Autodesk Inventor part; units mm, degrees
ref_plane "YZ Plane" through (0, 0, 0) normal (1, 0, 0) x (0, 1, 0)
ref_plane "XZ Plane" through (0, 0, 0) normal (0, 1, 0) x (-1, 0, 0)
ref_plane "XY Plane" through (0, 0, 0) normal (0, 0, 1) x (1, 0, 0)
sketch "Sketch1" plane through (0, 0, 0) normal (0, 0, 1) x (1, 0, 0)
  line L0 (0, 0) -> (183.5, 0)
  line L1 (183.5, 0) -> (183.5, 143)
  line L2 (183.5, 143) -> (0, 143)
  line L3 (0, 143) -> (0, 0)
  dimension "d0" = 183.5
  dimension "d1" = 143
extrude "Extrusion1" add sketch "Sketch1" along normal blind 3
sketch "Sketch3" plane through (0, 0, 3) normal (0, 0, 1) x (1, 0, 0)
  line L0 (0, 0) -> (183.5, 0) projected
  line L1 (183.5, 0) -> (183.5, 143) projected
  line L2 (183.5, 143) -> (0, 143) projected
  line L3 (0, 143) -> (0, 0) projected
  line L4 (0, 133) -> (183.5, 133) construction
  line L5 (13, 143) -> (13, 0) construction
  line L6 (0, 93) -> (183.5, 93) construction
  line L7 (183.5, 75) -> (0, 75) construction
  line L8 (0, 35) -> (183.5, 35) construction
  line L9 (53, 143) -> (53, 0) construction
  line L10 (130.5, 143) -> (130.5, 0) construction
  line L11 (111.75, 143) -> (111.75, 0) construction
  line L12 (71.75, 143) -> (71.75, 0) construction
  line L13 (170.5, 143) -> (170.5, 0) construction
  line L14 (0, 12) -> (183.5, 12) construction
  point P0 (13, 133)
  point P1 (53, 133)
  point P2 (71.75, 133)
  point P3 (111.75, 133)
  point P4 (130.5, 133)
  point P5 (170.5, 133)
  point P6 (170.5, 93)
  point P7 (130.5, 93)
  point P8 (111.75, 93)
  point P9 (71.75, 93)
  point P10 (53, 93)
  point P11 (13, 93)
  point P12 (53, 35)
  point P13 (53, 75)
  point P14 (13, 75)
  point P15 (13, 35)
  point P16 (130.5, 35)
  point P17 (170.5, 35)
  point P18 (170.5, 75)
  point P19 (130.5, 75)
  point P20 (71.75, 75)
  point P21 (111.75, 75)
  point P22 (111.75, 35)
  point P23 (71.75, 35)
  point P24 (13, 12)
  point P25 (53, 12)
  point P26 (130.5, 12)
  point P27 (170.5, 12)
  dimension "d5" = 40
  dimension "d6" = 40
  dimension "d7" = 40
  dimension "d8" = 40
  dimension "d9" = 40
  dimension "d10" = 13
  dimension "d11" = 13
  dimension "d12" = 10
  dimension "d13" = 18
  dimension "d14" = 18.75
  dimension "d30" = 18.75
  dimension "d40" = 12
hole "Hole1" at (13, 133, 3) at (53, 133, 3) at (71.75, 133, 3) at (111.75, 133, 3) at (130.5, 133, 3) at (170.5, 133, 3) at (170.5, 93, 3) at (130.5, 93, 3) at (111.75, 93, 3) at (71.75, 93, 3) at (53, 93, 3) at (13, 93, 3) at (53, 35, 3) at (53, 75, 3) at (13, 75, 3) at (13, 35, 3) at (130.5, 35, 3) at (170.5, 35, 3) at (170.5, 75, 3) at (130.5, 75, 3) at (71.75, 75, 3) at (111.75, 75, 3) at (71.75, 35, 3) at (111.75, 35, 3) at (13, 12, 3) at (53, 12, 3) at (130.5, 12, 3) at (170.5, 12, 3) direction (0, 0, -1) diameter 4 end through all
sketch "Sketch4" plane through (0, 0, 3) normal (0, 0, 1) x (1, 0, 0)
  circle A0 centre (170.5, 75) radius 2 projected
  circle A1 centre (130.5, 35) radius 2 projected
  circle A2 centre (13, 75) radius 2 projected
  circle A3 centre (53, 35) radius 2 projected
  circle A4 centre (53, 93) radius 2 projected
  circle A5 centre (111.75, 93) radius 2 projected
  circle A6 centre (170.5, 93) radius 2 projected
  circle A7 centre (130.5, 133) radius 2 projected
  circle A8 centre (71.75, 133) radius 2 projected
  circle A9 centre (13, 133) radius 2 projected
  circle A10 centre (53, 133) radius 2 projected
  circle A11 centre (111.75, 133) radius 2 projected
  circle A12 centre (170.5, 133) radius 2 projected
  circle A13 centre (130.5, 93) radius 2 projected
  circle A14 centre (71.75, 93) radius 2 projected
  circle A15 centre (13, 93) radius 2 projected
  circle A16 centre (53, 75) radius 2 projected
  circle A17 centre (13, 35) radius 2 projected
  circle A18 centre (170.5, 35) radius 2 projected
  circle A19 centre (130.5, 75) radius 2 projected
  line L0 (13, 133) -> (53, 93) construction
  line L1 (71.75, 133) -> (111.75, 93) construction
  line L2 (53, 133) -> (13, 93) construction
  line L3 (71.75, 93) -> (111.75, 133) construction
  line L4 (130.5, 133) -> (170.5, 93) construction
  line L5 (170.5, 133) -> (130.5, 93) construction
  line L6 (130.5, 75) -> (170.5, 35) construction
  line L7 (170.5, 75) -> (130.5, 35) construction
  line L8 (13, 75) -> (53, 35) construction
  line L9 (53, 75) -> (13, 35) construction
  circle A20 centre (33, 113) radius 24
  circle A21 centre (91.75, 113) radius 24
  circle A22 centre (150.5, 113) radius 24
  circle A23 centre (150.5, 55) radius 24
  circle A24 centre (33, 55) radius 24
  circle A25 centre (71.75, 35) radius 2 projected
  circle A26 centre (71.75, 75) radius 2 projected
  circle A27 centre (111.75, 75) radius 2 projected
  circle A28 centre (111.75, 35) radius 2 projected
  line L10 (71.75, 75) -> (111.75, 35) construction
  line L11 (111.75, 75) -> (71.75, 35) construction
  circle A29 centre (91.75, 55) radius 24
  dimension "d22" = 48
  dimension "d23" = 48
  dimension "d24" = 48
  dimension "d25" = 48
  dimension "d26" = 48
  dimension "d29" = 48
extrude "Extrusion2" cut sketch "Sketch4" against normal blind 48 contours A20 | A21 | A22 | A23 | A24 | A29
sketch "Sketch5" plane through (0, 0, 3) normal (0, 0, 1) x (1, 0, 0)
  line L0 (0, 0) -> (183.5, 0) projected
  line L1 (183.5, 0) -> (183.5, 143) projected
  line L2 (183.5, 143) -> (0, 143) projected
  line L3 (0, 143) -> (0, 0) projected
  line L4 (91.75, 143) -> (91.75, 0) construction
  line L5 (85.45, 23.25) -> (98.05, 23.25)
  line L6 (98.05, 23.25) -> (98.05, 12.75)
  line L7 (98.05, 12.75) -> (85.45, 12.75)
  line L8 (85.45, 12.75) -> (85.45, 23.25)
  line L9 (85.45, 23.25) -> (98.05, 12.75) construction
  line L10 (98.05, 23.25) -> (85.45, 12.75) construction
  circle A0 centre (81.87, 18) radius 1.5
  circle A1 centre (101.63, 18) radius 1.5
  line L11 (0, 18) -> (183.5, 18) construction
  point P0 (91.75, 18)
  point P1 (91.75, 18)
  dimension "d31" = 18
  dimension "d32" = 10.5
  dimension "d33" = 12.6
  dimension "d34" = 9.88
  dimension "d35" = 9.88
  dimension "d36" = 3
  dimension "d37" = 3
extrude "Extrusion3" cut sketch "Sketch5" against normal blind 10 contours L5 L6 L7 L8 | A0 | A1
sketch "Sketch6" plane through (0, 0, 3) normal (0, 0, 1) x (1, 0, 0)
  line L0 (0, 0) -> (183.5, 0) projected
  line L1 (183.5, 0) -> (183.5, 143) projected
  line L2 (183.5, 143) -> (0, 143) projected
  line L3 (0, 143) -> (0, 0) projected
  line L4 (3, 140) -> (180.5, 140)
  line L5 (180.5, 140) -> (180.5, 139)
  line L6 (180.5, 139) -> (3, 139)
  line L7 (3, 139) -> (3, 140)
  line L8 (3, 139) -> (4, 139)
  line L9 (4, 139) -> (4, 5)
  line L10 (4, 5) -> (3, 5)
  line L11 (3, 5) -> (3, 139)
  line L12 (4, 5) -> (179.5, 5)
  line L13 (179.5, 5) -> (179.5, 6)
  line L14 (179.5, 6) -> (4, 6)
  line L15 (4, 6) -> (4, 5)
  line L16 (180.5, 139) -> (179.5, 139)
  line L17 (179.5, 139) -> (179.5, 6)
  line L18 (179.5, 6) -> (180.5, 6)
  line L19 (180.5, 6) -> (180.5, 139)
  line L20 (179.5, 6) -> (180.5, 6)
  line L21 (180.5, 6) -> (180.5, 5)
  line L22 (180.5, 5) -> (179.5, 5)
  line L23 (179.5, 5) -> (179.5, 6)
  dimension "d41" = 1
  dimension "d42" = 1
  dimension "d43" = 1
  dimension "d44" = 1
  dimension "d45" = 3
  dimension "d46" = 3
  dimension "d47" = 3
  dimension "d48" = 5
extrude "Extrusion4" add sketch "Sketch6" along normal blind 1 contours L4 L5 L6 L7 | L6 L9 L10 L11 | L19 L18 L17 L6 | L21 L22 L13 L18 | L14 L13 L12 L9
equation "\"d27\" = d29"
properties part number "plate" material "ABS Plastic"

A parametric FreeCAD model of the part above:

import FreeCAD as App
import Part
import Sketcher

doc = App.newDocument("Part")
body = doc.addObject("PartDesign::Body", "Body")

# Sketch on XY plane
sketch1 = doc.addObject("Sketcher::SketchObject", "Sketch")
body.addObject(sketch1)
sketch1.AttachmentSupport = (doc.XY_Plane, [""])
sketch1.MapMode = "FlatFace"
sketch1.addGeometry([
    Part.LineSegment(App.Vector(0, 143, 0), App.Vector(0, 0, 0)),
    Part.LineSegment(App.Vector(0, 0, 0), App.Vector(184, 0, 0)),
    Part.LineSegment(App.Vector(184, 0, 0), App.Vector(184, 143, 0)),
    Part.LineSegment(App.Vector(184, 143, 0), App.Vector(0, 143, 0)),
], False)
sketch1.addConstraint([
    Sketcher.Constraint("Coincident", 0, 2, 1, 1),
    Sketcher.Constraint("Coincident", 1, 2, 2, 1),
    Sketcher.Constraint("Coincident", 2, 2, 3, 1),
    Sketcher.Constraint("Coincident", 3, 2, 0, 1),
    Sketcher.Constraint("Vertical", 0),
    Sketcher.Constraint("Horizontal", 1),
    Sketcher.Constraint("Vertical", 2),
    Sketcher.Constraint("Horizontal", 3),
    Sketcher.Constraint("Coincident", 0, 2, -1, 1),
    Sketcher.Constraint("DistanceY", 0, 2, 0, 1, 143.0),
    Sketcher.Constraint("DistanceX", 1, 1, 1, 2, 183.5),
])
pad1 = doc.addObject("PartDesign::Pad", "Pad")
body.addObject(pad1)
pad1.Profile = sketch1
pad1.Length = 3

# Sketch on XY plane
sketch2 = doc.addObject("Sketcher::SketchObject", "Sketch001")
body.addObject(sketch2)
sketch2.AttachmentSupport = (doc.XY_Plane, [""])
sketch2.MapMode = "FlatFace"
sketch2.AttachmentOffset = App.Placement(App.Vector(0, 0, 3), App.Rotation())
sketch2.addGeometry([
    Part.Circle(App.Vector(13, 133, 0), App.Vector(0, 0, 1), 2),  # 0
    Part.Circle(App.Vector(53, 133, 0), App.Vector(0, 0, 1), 2),  # 1
    Part.Circle(App.Vector(71.8, 133, 0), App.Vector(0, 0, 1), 2),  # 2
    Part.Circle(App.Vector(111.8, 133, 0), App.Vector(0, 0, 1), 2),  # 3
    Part.Circle(App.Vector(130.5, 133, 0), App.Vector(0, 0, 1), 2),  # 4
    Part.Circle(App.Vector(170.5, 133, 0), App.Vector(0, 0, 1), 2),  # 5
    Part.Circle(App.Vector(170.5, 93, 0), App.Vector(0, 0, 1), 2),  # 6
    Part.Circle(App.Vector(130.5, 93, 0), App.Vector(0, 0, 1), 2),  # 7
    Part.Circle(App.Vector(111.8, 93, 0), App.Vector(0, 0, 1), 2),  # 8
    Part.Circle(App.Vector(71.8, 93, 0), App.Vector(0, 0, 1), 2),  # 9
    Part.Circle(App.Vector(53, 93, 0), App.Vector(0, 0, 1), 2),  # 10
    Part.Circle(App.Vector(13, 93, 0), App.Vector(0, 0, 1), 2),  # 11
    Part.Circle(App.Vector(53, 35, 0), App.Vector(0, 0, 1), 2),  # 12
    Part.Circle(App.Vector(53, 75, 0), App.Vector(0, 0, 1), 2),  # 13
    Part.Circle(App.Vector(13, 75, 0), App.Vector(0, 0, 1), 2),  # 14
    Part.Circle(App.Vector(13, 35, 0), App.Vector(0, 0, 1), 2),  # 15
    Part.Circle(App.Vector(130.5, 35, 0), App.Vector(0, 0, 1), 2),  # 16
    Part.Circle(App.Vector(170.5, 35, 0), App.Vector(0, 0, 1), 2),  # 17
    Part.Circle(App.Vector(170.5, 75, 0), App.Vector(0, 0, 1), 2),  # 18
    Part.Circle(App.Vector(130.5, 75, 0), App.Vector(0, 0, 1), 2),  # 19
    Part.Circle(App.Vector(71.8, 75, 0), App.Vector(0, 0, 1), 2),  # 20
    Part.Circle(App.Vector(111.8, 75, 0), App.Vector(0, 0, 1), 2),  # 21
    Part.Circle(App.Vector(71.8, 35, 0), App.Vector(0, 0, 1), 2),  # 22
    Part.Circle(App.Vector(111.8, 35, 0), App.Vector(0, 0, 1), 2),  # 23
    Part.Circle(App.Vector(13, 12, 0), App.Vector(0, 0, 1), 2),  # 24
    Part.Circle(App.Vector(53, 12, 0), App.Vector(0, 0, 1), 2),  # 25
    Part.Circle(App.Vector(130.5, 12, 0), App.Vector(0, 0, 1), 2),  # 26
    Part.Circle(App.Vector(170.5, 12, 0), App.Vector(0, 0, 1), 2),  # 27
], False)
sketch2.addConstraint([
    Sketcher.Constraint("Equal", 0, 1),
    Sketcher.Constraint("Equal", 1, 2),
    Sketcher.Constraint("Equal", 2, 3),
    Sketcher.Constraint("Equal", 3, 4),
    Sketcher.Constraint("Equal", 4, 5),
    Sketcher.Constraint("Equal", 5, 6),
    Sketcher.Constraint("Equal", 6, 7),
    Sketcher.Constraint("Equal", 7, 8),
    Sketcher.Constraint("Equal", 8, 9),
    Sketcher.Constraint("Equal", 9, 10),
    Sketcher.Constraint("Equal", 10, 11),
    Sketcher.Constraint("Equal", 11, 12),
    Sketcher.Constraint("Equal", 12, 13),
    Sketcher.Constraint("Equal", 13, 14),
    Sketcher.Constraint("Equal", 14, 15),
    Sketcher.Constraint("Equal", 15, 16),
    Sketcher.Constraint("Equal", 16, 17),
    Sketcher.Constraint("Equal", 17, 18),
    Sketcher.Constraint("Equal", 18, 19),
    Sketcher.Constraint("Equal", 19, 20),
    Sketcher.Constraint("Equal", 20, 21),
    Sketcher.Constraint("Equal", 21, 22),
    Sketcher.Constraint("Equal", 22, 23),
    Sketcher.Constraint("Equal", 23, 24),
    Sketcher.Constraint("Equal", 24, 25),
    Sketcher.Constraint("Equal", 25, 26),
    Sketcher.Constraint("Equal", 26, 27),
    Sketcher.Constraint("Horizontal", 0, 3, 1, 3),
    Sketcher.Constraint("Horizontal", 1, 3, 2, 3),
    Sketcher.Constraint("Horizontal", 2, 3, 3, 3),
    Sketcher.Constraint("Horizontal", 3, 3, 4, 3),
    Sketcher.Constraint("Horizontal", 4, 3, 5, 3),
    Sketcher.Constraint("Horizontal", 6, 3, 7, 3),
    Sketcher.Constraint("Horizontal", 7, 3, 8, 3),
    Sketcher.Constraint("Horizontal", 8, 3, 9, 3),
    Sketcher.Constraint("Horizontal", 9, 3, 10, 3),
    Sketcher.Constraint("Horizontal", 10, 3, 11, 3),
    Sketcher.Constraint("Horizontal", 13, 3, 14, 3),
    Sketcher.Constraint("Horizontal", 12, 3, 15, 3),
    Sketcher.Constraint("Horizontal", 15, 3, 16, 3),
    Sketcher.Constraint("Horizontal", 16, 3, 17, 3),
    Sketcher.Constraint("Horizontal", 14, 3, 18, 3),
    Sketcher.Constraint("Horizontal", 18, 3, 19, 3),
    Sketcher.Constraint("Horizontal", 19, 3, 20, 3),
    Sketcher.Constraint("Horizontal", 20, 3, 21, 3),
    Sketcher.Constraint("Horizontal", 17, 3, 22, 3),
    Sketcher.Constraint("Horizontal", 22, 3, 23, 3),
    Sketcher.Constraint("Horizontal", 24, 3, 25, 3),
    Sketcher.Constraint("Horizontal", 25, 3, 26, 3),
    Sketcher.Constraint("Horizontal", 26, 3, 27, 3),
    Sketcher.Constraint("Vertical", 5, 3, 6, 3),
    Sketcher.Constraint("Vertical", 4, 3, 7, 3),
    Sketcher.Constraint("Vertical", 3, 3, 8, 3),
    Sketcher.Constraint("Vertical", 2, 3, 9, 3),
    Sketcher.Constraint("Vertical", 1, 3, 10, 3),
    Sketcher.Constraint("Vertical", 0, 3, 11, 3),
    Sketcher.Constraint("Vertical", 10, 3, 12, 3),
    Sketcher.Constraint("Vertical", 12, 3, 13, 3),
    Sketcher.Constraint("Vertical", 11, 3, 14, 3),
    Sketcher.Constraint("Vertical", 14, 3, 15, 3),
    Sketcher.Constraint("Vertical", 7, 3, 16, 3),
    Sketcher.Constraint("Vertical", 6, 3, 17, 3),
    Sketcher.Constraint("Vertical", 17, 3, 18, 3),
    Sketcher.Constraint("Vertical", 16, 3, 19, 3),
    Sketcher.Constraint("Vertical", 9, 3, 20, 3),
    Sketcher.Constraint("Vertical", 8, 3, 21, 3),
    Sketcher.Constraint("Vertical", 20, 3, 22, 3),
    Sketcher.Constraint("Vertical", 21, 3, 23, 3),
    Sketcher.Constraint("Vertical", 15, 3, 24, 3),
    Sketcher.Constraint("Vertical", 13, 3, 25, 3),
    Sketcher.Constraint("Vertical", 19, 3, 26, 3),
    Sketcher.Constraint("Vertical", 18, 3, 27, 3),
    Sketcher.Constraint("Diameter", 0, 4.0),
    Sketcher.Constraint("DistanceX", -1, 1, 0, 3, 13.0),
    Sketcher.Constraint("DistanceY", -1, 1, 0, 3, 133.0),
    Sketcher.Constraint("DistanceX", -1, 1, 1, 3, 53.0),
    Sketcher.Constraint("DistanceY", -1, 1, 6, 3, 93.0),
    Sketcher.Constraint("DistanceY", -1, 1, 12, 3, 35.0),
    Sketcher.Constraint("DistanceY", -1, 1, 13, 3, 75.0),
    Sketcher.Constraint("DistanceY", -1, 1, 24, 3, 12.0),
    Sketcher.Constraint("DistanceX", 2, 3, 3, 3, 40.0),
    Sketcher.Constraint("DistanceX", 4, 3, 5, 3, 40.0),
    Sketcher.Constraint("DistanceX", -1, 1, 4, 3, 130.5),
    Sketcher.Constraint("DistanceX", -1, 1, 2, 3, 71.75),
])
doc.recompute()
hole = doc.addObject("PartDesign::Hole", "Hole")
body.addObject(hole)
hole.Profile = sketch2
hole.ThreadType = "None"
hole.Diameter = 4
hole.DepthType = "ThroughAll"

# Sketch on XY plane
sketch3 = doc.addObject("Sketcher::SketchObject", "Sketch002")
body.addObject(sketch3)
sketch3.AttachmentSupport = (doc.XY_Plane, [""])
sketch3.MapMode = "FlatFace"
sketch3.AttachmentOffset = App.Placement(App.Vector(0, 0, 3), App.Rotation())
sketch3.addGeometry([
    Part.Circle(App.Vector(33, 113, 0), App.Vector(0, 0, 1), 24),  # 0
    Part.Circle(App.Vector(92, 113, 0), App.Vector(0, 0, 1), 24),  # 1
    Part.Circle(App.Vector(150, 113, 0), App.Vector(0, 0, 1), 24),  # 2
    Part.Circle(App.Vector(150, 55, 0), App.Vector(0, 0, 1), 24),  # 3
    Part.Circle(App.Vector(33, 55, 0), App.Vector(0, 0, 1), 24),  # 4
    Part.Circle(App.Vector(92, 55, 0), App.Vector(0, 0, 1), 24),  # 5
], False)
sketch3.addConstraint([
    Sketcher.Constraint("Equal", 0, 1),
    Sketcher.Constraint("Equal", 1, 2),
    Sketcher.Constraint("Equal", 2, 3),
    Sketcher.Constraint("Equal", 3, 4),
    Sketcher.Constraint("Equal", 4, 5),
    Sketcher.Constraint("Horizontal", 0, 3, 1, 3),
    Sketcher.Constraint("Horizontal", 1, 3, 2, 3),
    Sketcher.Constraint("Horizontal", 3, 3, 4, 3),
    Sketcher.Constraint("Horizontal", 4, 3, 5, 3),
    Sketcher.Constraint("Vertical", 2, 3, 3, 3),
    Sketcher.Constraint("Vertical", 0, 3, 4, 3),
    Sketcher.Constraint("Vertical", 1, 3, 5, 3),
    Sketcher.Constraint("Diameter", 0, 48.0),
    Sketcher.Constraint("DistanceX", -1, 1, 0, 3, 33.0),
    Sketcher.Constraint("DistanceY", -1, 1, 0, 3, 113.0),
    Sketcher.Constraint("DistanceY", -1, 1, 3, 3, 55.0),
    Sketcher.Constraint("DistanceX", -1, 1, 2, 3, 150.5),
    Sketcher.Constraint("DistanceX", -1, 1, 1, 3, 91.75),
])
pocket1 = doc.addObject("PartDesign::Pocket", "Pocket")
body.addObject(pocket1)
pocket1.Profile = sketch3
pocket1.Length = 48

# Sketch on XY plane
sketch4 = doc.addObject("Sketcher::SketchObject", "Sketch003")
body.addObject(sketch4)
sketch4.AttachmentSupport = (doc.XY_Plane, [""])
sketch4.MapMode = "FlatFace"
sketch4.AttachmentOffset = App.Placement(App.Vector(0, 0, 3), App.Rotation())
sketch4.addGeometry([
    Part.LineSegment(App.Vector(98, 23.2, 0), App.Vector(85.5, 23.2, 0)),  # 0
    Part.LineSegment(App.Vector(85.5, 23.2, 0), App.Vector(85.5, 12.8, 0)),  # 1
    Part.LineSegment(App.Vector(85.5, 12.8, 0), App.Vector(98, 12.8, 0)),  # 2
    Part.LineSegment(App.Vector(98, 12.8, 0), App.Vector(98, 23.2, 0)),  # 3
    Part.Circle(App.Vector(81.9, 18, 0), App.Vector(0, 0, 1), 1.5),  # 4
    Part.Circle(App.Vector(101.6, 18, 0), App.Vector(0, 0, 1), 1.5),  # 5
], False)
sketch4.addConstraint([
    Sketcher.Constraint("Coincident", 0, 2, 1, 1),
    Sketcher.Constraint("Coincident", 1, 2, 2, 1),
    Sketcher.Constraint("Coincident", 2, 2, 3, 1),
    Sketcher.Constraint("Coincident", 3, 2, 0, 1),
    Sketcher.Constraint("Horizontal", 0),
    Sketcher.Constraint("Vertical", 1),
    Sketcher.Constraint("Horizontal", 2),
    Sketcher.Constraint("Vertical", 3),
    Sketcher.Constraint("Equal", 4, 5),
    Sketcher.Constraint("Horizontal", 4, 3, 5, 3),
    Sketcher.Constraint("Diameter", 4, 3.0),
    Sketcher.Constraint("DistanceX", 0, 2, 0, 1, 12.6),
    Sketcher.Constraint("DistanceY", 1, 2, 1, 1, 10.5),
    Sketcher.Constraint("DistanceY", -1, 1, 4, 3, 18.0),
    Sketcher.Constraint("DistanceX", -1, 1, 4, 3, 81.87),
    Sketcher.Constraint("DistanceX", -1, 1, 5, 3, 101.63),
    Sketcher.Constraint("DistanceX", -1, 1, 0, 2, 85.45),
    Sketcher.Constraint("DistanceY", -1, 1, 0, 2, 23.25),
])
pocket2 = doc.addObject("PartDesign::Pocket", "Pocket001")
body.addObject(pocket2)
pocket2.Profile = sketch4
pocket2.Length = 10

# Sketch on XY plane
sketch5 = doc.addObject("Sketcher::SketchObject", "Sketch004")
body.addObject(sketch5)
sketch5.AttachmentSupport = (doc.XY_Plane, [""])
sketch5.MapMode = "FlatFace"
sketch5.AttachmentOffset = App.Placement(App.Vector(0, 0, 3), App.Rotation())
sketch5.addGeometry([
    Part.LineSegment(App.Vector(180, 140, 0), App.Vector(3, 140, 0)),  # 0
    Part.LineSegment(App.Vector(3, 140, 0), App.Vector(3, 5, 0)),  # 1
    Part.LineSegment(App.Vector(3, 5, 0), App.Vector(180, 5, 0)),  # 2
    Part.LineSegment(App.Vector(180, 5, 0), App.Vector(180, 140, 0)),  # 3
    Part.LineSegment(App.Vector(4, 139, 0), App.Vector(180, 139, 0)),  # 4
    Part.LineSegment(App.Vector(180, 139, 0), App.Vector(180, 6, 0)),  # 5
    Part.LineSegment(App.Vector(180, 6, 0), App.Vector(4, 6, 0)),  # 6
    Part.LineSegment(App.Vector(4, 6, 0), App.Vector(4, 139, 0)),  # 7
], False)
sketch5.addConstraint([
    Sketcher.Constraint("Coincident", 0, 2, 1, 1),
    Sketcher.Constraint("Coincident", 1, 2, 2, 1),
    Sketcher.Constraint("Coincident", 2, 2, 3, 1),
    Sketcher.Constraint("Coincident", 3, 2, 0, 1),
    Sketcher.Constraint("Coincident", 4, 2, 5, 1),
    Sketcher.Constraint("Coincident", 5, 2, 6, 1),
    Sketcher.Constraint("Coincident", 6, 2, 7, 1),
    Sketcher.Constraint("Coincident", 7, 2, 4, 1),
    Sketcher.Constraint("Horizontal", 0),
    Sketcher.Constraint("Vertical", 1),
    Sketcher.Constraint("Horizontal", 2),
    Sketcher.Constraint("Vertical", 3),
    Sketcher.Constraint("Horizontal", 4),
    Sketcher.Constraint("Vertical", 5),
    Sketcher.Constraint("Horizontal", 6),
    Sketcher.Constraint("Vertical", 7),
    Sketcher.Constraint("DistanceX", -1, 1, 0, 2, 3.0),
    Sketcher.Constraint("DistanceY", -1, 1, 1, 2, 5.0),
    Sketcher.Constraint("DistanceX", 4, 2, 3, 2, 1.0),
    Sketcher.Constraint("DistanceY", 4, 2, 3, 2, 1.0),
    Sketcher.Constraint("DistanceY", 2, 2, 5, 2, 1.0),
    Sketcher.Constraint("DistanceX", 1, 2, 6, 2, 1.0),
    Sketcher.Constraint("DistanceY", 1, 2, 1, 1, 135.0),
    Sketcher.Constraint("DistanceX", 0, 2, 0, 1, 177.5),
])
pad2 = doc.addObject("PartDesign::Pad", "Pad001")
body.addObject(pad2)
pad2.Profile = sketch5
pad2.Length = 1

doc.recompute()
